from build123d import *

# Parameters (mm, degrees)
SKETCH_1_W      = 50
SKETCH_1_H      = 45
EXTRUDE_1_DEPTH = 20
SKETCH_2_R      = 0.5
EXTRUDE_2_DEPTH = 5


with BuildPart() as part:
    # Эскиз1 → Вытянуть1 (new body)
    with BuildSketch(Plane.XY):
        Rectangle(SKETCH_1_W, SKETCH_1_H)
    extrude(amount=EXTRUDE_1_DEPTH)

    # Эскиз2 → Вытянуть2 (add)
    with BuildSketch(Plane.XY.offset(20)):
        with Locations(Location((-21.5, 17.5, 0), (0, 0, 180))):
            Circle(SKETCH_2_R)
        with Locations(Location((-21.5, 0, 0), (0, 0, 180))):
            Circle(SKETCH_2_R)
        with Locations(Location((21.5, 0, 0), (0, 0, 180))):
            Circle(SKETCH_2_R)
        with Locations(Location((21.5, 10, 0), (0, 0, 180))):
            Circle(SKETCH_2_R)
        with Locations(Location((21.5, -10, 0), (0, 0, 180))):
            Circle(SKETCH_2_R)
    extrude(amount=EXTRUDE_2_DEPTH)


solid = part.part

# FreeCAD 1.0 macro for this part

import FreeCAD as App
import Part
import Sketcher

V = App.Vector
Q = App.Units.Quantity

doc = App.newDocument("Part")
body = doc.addObject("PartDesign::Body", "Body")

# Sketch on XY plane
sketch1 = doc.addObject("Sketcher::SketchObject", "Sketch")
body.addObject(sketch1)
sketch1.AttachmentSupport = (doc.XY_Plane, [""])
sketch1.MapMode = "FlatFace"
sketch1.addGeometry([
    Part.LineSegment(V(-25, 22, 0), V(-25, -22, 0)),
    Part.LineSegment(V(-25, -22, 0), V(25, -22, 0)),
    Part.LineSegment(V(25, -22, 0), V(25, 22, 0)),
    Part.LineSegment(V(25, 22, 0), V(-25, 22, 0)),
], False)
sketch1.addConstraint([
    Sketcher.Constraint("Coincident", 0, 2, 1, 1),
    Sketcher.Constraint("Coincident", 1, 2, 2, 1),
    Sketcher.Constraint("Coincident", 2, 2, 3, 1),
    Sketcher.Constraint("Coincident", 3, 2, 0, 1),
    Sketcher.Constraint("Vertical", 0),
    Sketcher.Constraint("Horizontal", 1),
    Sketcher.Constraint("Vertical", 2),
    Sketcher.Constraint("Horizontal", 3),
    Sketcher.Constraint("Symmetric", 0, 2, 2, 2, -1, 1),
    Sketcher.Constraint("DistanceX", 1, 1, 1, 2, Q("50 mm")),
    Sketcher.Constraint("DistanceY", 0, 2, 0, 1, Q("45 mm")),
])
pad1 = doc.addObject("PartDesign::Pad", "Pad")
body.addObject(pad1)
pad1.Profile = sketch1
pad1.Length = 20

# Sketch on XY plane
sketch2 = doc.addObject("Sketcher::SketchObject", "Sketch001")
body.addObject(sketch2)
sketch2.AttachmentSupport = (doc.XY_Plane, [""])
sketch2.MapMode = "FlatFace"
sketch2.AttachmentOffset = App.Placement(V(0, 0, 20), App.Rotation())
sketch2.addGeometry([
    Part.Circle(V(-21.5, 17.5, 0), V(0, 0, 1), 0.5),  # 0
    Part.Circle(V(-21.5, 0, 0), V(0, 0, 1), 0.5),  # 1
    Part.Circle(V(21.5, 0, 0), V(0, 0, 1), 0.5),  # 2
    Part.Circle(V(21.5, 10, 0), V(0, 0, 1), 0.5),  # 3
    Part.Circle(V(21.5, -10, 0), V(0, 0, 1), 0.5),  # 4
], False)
sketch2.addConstraint([
    Sketcher.Constraint("Equal", 0, 1),
    Sketcher.Constraint("Equal", 1, 2),
    Sketcher.Constraint("Equal", 2, 3),
    Sketcher.Constraint("Equal", 3, 4),
    Sketcher.Constraint("Symmetric", 1, 3, 2, 3, -1, 1),
    Sketcher.Constraint("Symmetric", 3, 3, 4, 3, -1),
    Sketcher.Constraint("PointOnObject", 1, 3, -1),
    Sketcher.Constraint("Vertical", 0, 3, 1, 3),
    Sketcher.Constraint("Vertical", 2, 3, 3, 3),
    Sketcher.Constraint("Diameter", 0, Q("1 mm")),
    Sketcher.Constraint("DistanceY", -1, 1, 3, 3, Q("10 mm")),
    Sketcher.Constraint("DistanceX", 1, 3, 2, 3, Q("43 mm")),
    Sketcher.Constraint("DistanceY", -1, 1, 0, 3, Q("17.5 mm")),
])
pad2 = doc.addObject("PartDesign::Pad", "Pad001")
body.addObject(pad2)
pad2.Profile = sketch2
pad2.Length = 5

doc.recompute()
